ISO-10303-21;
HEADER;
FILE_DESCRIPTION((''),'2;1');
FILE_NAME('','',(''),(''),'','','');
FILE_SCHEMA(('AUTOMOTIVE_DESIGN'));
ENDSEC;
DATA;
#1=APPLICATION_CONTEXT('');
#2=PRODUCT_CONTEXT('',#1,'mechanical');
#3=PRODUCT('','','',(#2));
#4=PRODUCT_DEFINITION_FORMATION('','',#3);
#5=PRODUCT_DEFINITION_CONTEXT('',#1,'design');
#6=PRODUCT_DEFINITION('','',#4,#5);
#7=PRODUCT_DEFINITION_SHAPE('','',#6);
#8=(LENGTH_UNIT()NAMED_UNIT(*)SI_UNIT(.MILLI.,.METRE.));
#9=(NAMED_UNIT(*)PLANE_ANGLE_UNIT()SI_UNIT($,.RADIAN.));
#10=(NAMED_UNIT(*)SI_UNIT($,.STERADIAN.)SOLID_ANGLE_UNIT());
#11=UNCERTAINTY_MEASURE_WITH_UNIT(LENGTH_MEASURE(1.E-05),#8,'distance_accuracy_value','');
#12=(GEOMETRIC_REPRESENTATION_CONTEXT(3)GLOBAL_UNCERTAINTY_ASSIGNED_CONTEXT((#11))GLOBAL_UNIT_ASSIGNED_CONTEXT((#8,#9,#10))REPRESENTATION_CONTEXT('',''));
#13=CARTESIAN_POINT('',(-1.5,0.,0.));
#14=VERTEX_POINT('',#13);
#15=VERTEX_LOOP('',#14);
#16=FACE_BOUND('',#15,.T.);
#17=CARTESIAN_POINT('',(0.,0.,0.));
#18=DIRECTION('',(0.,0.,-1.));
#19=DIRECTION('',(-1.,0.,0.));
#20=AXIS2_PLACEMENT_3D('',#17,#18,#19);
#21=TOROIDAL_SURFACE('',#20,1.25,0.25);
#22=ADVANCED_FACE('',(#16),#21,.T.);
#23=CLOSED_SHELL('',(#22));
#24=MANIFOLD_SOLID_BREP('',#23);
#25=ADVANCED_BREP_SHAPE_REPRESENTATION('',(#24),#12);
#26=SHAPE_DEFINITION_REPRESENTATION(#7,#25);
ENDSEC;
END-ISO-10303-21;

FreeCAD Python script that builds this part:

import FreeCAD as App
import Part
import Sketcher
Q = App.Units.Quantity

doc = App.newDocument("Part")
params = doc.addObject("Spreadsheet::Sheet", "Params")
for row, (alias, value) in enumerate([
    ("sketch1_diameter", "0.5 mm"),
    ("revolution_angle", "360 deg"),
], start=1):
    params.set(f"A{row}", alias)
    params.set(f"B{row}", "=" + value)
    params.setAlias(f"B{row}", alias)

body = doc.addObject("PartDesign::Body", "Body")

# Sketch on XZ plane
sketch1 = body.newObject("Sketcher::SketchObject", "Sketch")
sketch1.AttachmentSupport = (doc.getObject("XZ_Plane"), [""])
sketch1.MapMode = "FlatFace"
sketch1.addGeometry(Part.Circle(App.Vector(-1.25, 0, 0), App.Vector(0, 0, 1), 0.25), False)
sketch1.addConstraint([
    Sketcher.Constraint("PointOnObject", 0, 3, -1),
    Sketcher.Constraint("Diameter", 0, Q("0.5 mm")),
    Sketcher.Constraint("DistanceX", 0, 3, -1, 1, Q("1.25 mm")),
])
sketch1.setExpression("Constraints[1]", "Params.sketch1_diameter")
revolution = body.newObject("PartDesign::Revolution", "Revolution")
revolution.Profile = sketch1
revolution.ReferenceAxis = (sketch1, ["V_Axis"])
revolution.setExpression("Angle", "Params.revolution_angle")

doc.recompute()
